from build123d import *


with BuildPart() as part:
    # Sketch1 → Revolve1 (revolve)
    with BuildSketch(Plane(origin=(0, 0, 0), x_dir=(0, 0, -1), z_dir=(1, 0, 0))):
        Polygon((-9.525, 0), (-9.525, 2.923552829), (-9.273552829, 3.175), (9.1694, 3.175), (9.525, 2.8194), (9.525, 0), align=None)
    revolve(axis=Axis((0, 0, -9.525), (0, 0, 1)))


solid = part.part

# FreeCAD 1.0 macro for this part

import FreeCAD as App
import Part
import Sketcher

V = App.Vector
Q = App.Units.Quantity


def add_polygon(sketch, points):
    """Adds a closed chain of lines whose ends are joined by coincident constraints."""
    first, n = sketch.GeometryCount, len(points)
    for a, b in zip(points, points[1:] + points[:1]):
        sketch.addGeometry(Part.LineSegment(App.Vector(*a, 0), App.Vector(*b, 0)), False)
    for i in range(n):
        sketch.addConstraint(Sketcher.Constraint("Coincident", first + i, 2, first + (i + 1) % n, 1))

doc = App.newDocument("Part")
body = doc.addObject("PartDesign::Body", "Body")

sketch1 = doc.addObject("Sketcher::SketchObject", "Sketch")
body.addObject(sketch1)
sketch1.AttachmentSupport = (doc.YZ_Plane, [""])
sketch1.MapMode = "FlatFace"
add_polygon(sketch1, [(2.92, 9.53), (0, 9.53), (0, -9.53), (2.82, -9.53), (3.17, -9.17), (3.17, 9.27)])
sketch1.addConstraint(Sketcher.Constraint("Horizontal", 0))
sketch1.addConstraint(Sketcher.Constraint("Vertical", 1))
sketch1.addConstraint(Sketcher.Constraint("Horizontal", 2))
sketch1.addConstraint(Sketcher.Constraint("Vertical", 4))
sketch1.addConstraint(Sketcher.Constraint("Symmetric", 0, 2, 1, 2, -1, 1))
sketch1.addConstraint(Sketcher.Constraint("Perpendicular", 3, 5))
sketch1.addConstraint(Sketcher.Constraint("Angle", 3, Q("45 deg")))
sketch1.addConstraint(Sketcher.Constraint("DistanceY", 1, 2, 1, 1, Q("0.75 in")))
sketch1.addConstraint(Sketcher.Constraint("DistanceX", 2, 1, 2, 2, Q("0.111 in")))
sketch1.addConstraint(Sketcher.Constraint("Distance", 5, Q("0.014 in")))
sketch1.addConstraint(Sketcher.Constraint("DistanceX", -1, 1, 3, 2, Q("0.125 in")))
revolution = doc.addObject("PartDesign::Revolution", "Revolution")
body.addObject(revolution)
revolution.Profile = sketch1
revolution.ReferenceAxis = (sketch1, ["V_Axis"])
revolution.Angle = 360

doc.recompute()
